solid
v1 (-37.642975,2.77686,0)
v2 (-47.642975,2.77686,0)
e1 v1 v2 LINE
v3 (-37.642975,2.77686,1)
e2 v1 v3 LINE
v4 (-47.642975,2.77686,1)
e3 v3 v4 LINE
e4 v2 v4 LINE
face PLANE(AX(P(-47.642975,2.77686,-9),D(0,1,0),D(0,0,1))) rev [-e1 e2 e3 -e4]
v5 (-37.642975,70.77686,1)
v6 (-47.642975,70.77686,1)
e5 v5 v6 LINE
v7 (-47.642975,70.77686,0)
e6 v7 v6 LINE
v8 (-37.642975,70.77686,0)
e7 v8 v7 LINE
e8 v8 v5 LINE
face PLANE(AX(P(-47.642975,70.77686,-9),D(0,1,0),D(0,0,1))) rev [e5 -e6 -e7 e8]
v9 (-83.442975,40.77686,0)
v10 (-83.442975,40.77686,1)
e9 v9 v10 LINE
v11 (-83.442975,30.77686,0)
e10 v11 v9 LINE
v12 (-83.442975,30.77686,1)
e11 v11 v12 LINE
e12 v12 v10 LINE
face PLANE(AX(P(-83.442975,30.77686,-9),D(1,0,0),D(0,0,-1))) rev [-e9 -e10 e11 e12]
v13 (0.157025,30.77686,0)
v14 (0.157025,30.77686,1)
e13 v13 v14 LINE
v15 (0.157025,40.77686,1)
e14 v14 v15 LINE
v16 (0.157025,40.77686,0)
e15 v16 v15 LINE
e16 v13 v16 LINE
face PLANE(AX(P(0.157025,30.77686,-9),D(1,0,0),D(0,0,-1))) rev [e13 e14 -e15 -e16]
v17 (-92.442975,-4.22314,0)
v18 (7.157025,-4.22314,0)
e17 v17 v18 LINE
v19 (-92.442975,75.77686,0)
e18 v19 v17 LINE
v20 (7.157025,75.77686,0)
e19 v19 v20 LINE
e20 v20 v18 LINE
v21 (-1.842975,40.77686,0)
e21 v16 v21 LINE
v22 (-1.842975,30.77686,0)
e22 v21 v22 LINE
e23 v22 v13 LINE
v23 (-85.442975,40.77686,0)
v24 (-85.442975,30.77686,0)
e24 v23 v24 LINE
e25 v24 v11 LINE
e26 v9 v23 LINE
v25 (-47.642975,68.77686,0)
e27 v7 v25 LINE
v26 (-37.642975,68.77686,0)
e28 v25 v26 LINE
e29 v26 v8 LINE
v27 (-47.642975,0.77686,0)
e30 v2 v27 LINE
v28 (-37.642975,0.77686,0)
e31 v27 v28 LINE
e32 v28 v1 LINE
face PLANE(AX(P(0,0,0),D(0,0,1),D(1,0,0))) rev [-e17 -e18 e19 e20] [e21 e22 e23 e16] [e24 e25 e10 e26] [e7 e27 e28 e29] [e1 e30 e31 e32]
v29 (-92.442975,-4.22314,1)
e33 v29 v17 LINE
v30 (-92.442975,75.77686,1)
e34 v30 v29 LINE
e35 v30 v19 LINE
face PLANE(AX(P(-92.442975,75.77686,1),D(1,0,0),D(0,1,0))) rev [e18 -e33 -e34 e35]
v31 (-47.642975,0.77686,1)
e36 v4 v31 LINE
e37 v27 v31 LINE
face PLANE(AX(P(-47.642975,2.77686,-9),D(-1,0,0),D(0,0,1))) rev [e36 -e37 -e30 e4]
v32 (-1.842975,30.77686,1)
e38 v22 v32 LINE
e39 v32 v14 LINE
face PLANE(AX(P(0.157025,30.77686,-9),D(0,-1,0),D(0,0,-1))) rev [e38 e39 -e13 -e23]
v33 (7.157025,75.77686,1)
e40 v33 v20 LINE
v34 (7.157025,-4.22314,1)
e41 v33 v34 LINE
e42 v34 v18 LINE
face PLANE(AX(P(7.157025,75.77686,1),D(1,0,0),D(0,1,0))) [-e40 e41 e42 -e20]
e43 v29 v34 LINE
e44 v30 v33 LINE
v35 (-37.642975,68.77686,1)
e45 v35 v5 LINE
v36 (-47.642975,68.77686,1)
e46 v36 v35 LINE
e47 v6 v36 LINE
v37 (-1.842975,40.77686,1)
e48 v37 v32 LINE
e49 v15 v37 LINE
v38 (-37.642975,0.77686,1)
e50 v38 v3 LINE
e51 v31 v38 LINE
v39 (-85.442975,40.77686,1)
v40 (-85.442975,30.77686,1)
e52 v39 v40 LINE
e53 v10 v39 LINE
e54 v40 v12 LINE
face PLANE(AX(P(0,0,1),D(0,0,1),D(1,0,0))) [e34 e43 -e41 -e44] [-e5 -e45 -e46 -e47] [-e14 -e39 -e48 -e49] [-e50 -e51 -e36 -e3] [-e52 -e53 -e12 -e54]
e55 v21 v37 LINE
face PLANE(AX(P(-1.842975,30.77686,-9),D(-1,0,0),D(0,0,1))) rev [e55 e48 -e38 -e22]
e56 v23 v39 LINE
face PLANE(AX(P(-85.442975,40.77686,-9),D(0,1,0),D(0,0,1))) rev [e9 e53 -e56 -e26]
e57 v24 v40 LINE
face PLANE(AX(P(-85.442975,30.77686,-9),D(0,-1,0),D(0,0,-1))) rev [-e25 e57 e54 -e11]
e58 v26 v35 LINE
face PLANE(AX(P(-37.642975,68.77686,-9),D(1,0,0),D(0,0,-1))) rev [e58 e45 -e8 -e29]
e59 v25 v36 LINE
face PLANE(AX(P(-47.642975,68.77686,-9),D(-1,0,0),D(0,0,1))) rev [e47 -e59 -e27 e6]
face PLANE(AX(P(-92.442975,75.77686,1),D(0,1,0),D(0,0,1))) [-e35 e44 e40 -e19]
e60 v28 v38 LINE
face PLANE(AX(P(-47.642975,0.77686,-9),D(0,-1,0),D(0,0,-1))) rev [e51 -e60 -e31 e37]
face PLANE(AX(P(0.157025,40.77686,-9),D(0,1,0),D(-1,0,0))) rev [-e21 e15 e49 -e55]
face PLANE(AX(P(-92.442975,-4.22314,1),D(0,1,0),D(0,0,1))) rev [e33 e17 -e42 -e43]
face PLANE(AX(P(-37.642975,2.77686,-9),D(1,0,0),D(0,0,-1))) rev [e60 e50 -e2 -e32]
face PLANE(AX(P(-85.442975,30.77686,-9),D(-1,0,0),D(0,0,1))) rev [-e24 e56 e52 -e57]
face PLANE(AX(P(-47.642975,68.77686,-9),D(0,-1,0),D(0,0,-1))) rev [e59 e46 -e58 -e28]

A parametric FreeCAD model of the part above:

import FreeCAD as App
import Part
import Sketcher
from FreeCAD import Vector
Q = App.Units.Quantity

doc = App.newDocument("Part")
body = doc.addObject("PartDesign::Body", "Body")

sketch1 = body.newObject("Sketcher::SketchObject", "Sketch")
sketch1.AttachmentSupport = (doc.getObject("XY_Plane"), [""])
sketch1.MapMode = "FlatFace"
sketch1.addGeometry([
    Part.LineSegment(Vector(-92, 76, 0), Vector(-92, -4, 0)),
    Part.LineSegment(Vector(-92, -4, 0), Vector(7, -4, 0)),
    Part.LineSegment(Vector(7, -4, 0), Vector(7, 76, 0)),
    Part.LineSegment(Vector(7, 76, 0), Vector(-92, 76, 0)),
], False)
sketch1.addConstraint([
    Sketcher.Constraint("Coincident", 0, 2, 1, 1),
    Sketcher.Constraint("Coincident", 1, 2, 2, 1),
    Sketcher.Constraint("Coincident", 2, 2, 3, 1),
    Sketcher.Constraint("Coincident", 3, 2, 0, 1),
    Sketcher.Constraint("Vertical", 0),
    Sketcher.Constraint("Horizontal", 1),
    Sketcher.Constraint("Vertical", 2),
    Sketcher.Constraint("Horizontal", 3),
    Sketcher.Constraint("DistanceY", 0, 2, 0, 1, Q("80 mm")),
    Sketcher.Constraint("DistanceX", 1, 1, 1, 2, Q("99.6 mm")),
    Sketcher.Constraint("DistanceY", 0, 2, -1, 1, Q("4.22314 mm")),
    Sketcher.Constraint("DistanceX", 0, 2, -1, 1, Q("92.442975 mm")),
])
pad1 = body.newObject("PartDesign::Pad", "Pad")
pad1.Profile = sketch1
pad1.Length = 1

sketch2 = body.newObject("Sketcher::SketchObject", "Sketch001")
sketch2.AttachmentSupport = (doc.getObject("XY_Plane"), [""])
sketch2.MapMode = "FlatFace"
sketch2.AttachmentOffset = App.Placement(Vector(0, 0, 1), App.Rotation())
sketch2.addGeometry([
    Part.LineSegment(Vector(-47.6, 70.8, 0), Vector(-47.6, 68.8, 0)),
    Part.LineSegment(Vector(-47.6, 68.8, 0), Vector(-37.6, 68.8, 0)),
    Part.LineSegment(Vector(-37.6, 68.8, 0), Vector(-37.6, 70.8, 0)),
    Part.LineSegment(Vector(-37.6, 70.8, 0), Vector(-47.6, 70.8, 0)),
    Part.LineSegment(Vector(-47.6, 2.8, 0), Vector(-47.6, 0.8, 0)),
    Part.LineSegment(Vector(-47.6, 0.8, 0), Vector(-37.6, 0.8, 0)),
    Part.LineSegment(Vector(-37.6, 0.8, 0), Vector(-37.6, 2.8, 0)),
    Part.LineSegment(Vector(-37.6, 2.8, 0), Vector(-47.6, 2.8, 0)),
    Part.LineSegment(Vector(-85.4, 40.8, 0), Vector(-85.4, 30.8, 0)),
    Part.LineSegment(Vector(-85.4, 30.8, 0), Vector(-83.4, 30.8, 0)),
    Part.LineSegment(Vector(-83.4, 30.8, 0), Vector(-83.4, 40.8, 0)),
    Part.LineSegment(Vector(-83.4, 40.8, 0), Vector(-85.4, 40.8, 0)),
    Part.LineSegment(Vector(-1.8, 40.8, 0), Vector(-1.8, 30.8, 0)),
    Part.LineSegment(Vector(-1.8, 30.8, 0), Vector(0.2, 30.8, 0)),
    Part.LineSegment(Vector(0.2, 30.8, 0), Vector(0.2, 40.8, 0)),
    Part.LineSegment(Vector(0.2, 40.8, 0), Vector(-1.8, 40.8, 0)),
], False)
sketch2.addConstraint([
    Sketcher.Constraint("Coincident", 0, 2, 1, 1),
    Sketcher.Constraint("Coincident", 1, 2, 2, 1),
    Sketcher.Constraint("Coincident", 2, 2, 3, 1),
    Sketcher.Constraint("Coincident", 3, 2, 0, 1),
    Sketcher.Constraint("Coincident", 4, 2, 5, 1),
    Sketcher.Constraint("Coincident", 5, 2, 6, 1),
    Sketcher.Constraint("Coincident", 6, 2, 7, 1),
    Sketcher.Constraint("Coincident", 7, 2, 4, 1),
    Sketcher.Constraint("Coincident", 8, 2, 9, 1),
    Sketcher.Constraint("Coincident", 9, 2, 10, 1),
    Sketcher.Constraint("Coincident", 10, 2, 11, 1),
    Sketcher.Constraint("Coincident", 11, 2, 8, 1),
    Sketcher.Constraint("Coincident", 12, 2, 13, 1),
    Sketcher.Constraint("Coincident", 13, 2, 14, 1),
    Sketcher.Constraint("Coincident", 14, 2, 15, 1),
    Sketcher.Constraint("Coincident", 15, 2, 12, 1),
    Sketcher.Constraint("Vertical", 0),
    Sketcher.Constraint("Horizontal", 1),
    Sketcher.Constraint("Vertical", 2),
    Sketcher.Constraint("Horizontal", 3),
    Sketcher.Constraint("Vertical", 4),
    Sketcher.Constraint("Horizontal", 5),
    Sketcher.Constraint("Vertical", 6),
    Sketcher.Constraint("Horizontal", 7),
    Sketcher.Constraint("Vertical", 8),
    Sketcher.Constraint("Horizontal", 9),
    Sketcher.Constraint("Vertical", 10),
    Sketcher.Constraint("Horizontal", 11),
    Sketcher.Constraint("Vertical", 12),
    Sketcher.Constraint("Horizontal", 13),
    Sketcher.Constraint("Vertical", 14),
    Sketcher.Constraint("Horizontal", 15),
    Sketcher.Constraint("Horizontal", 9, 2, 12, 2),
    Sketcher.Constraint("Horizontal", 11, 2, 14, 2),
    Sketcher.Constraint("Vertical", 3, 2, 4, 2),
    Sketcher.Constraint("Vertical", 2, 2, 5, 2),
    Sketcher.Constraint("Equal", 11, 13),
    Sketcher.Constraint("Equal", 15, 0),
    Sketcher.Constraint("Equal", 2, 4),
    Sketcher.Constraint("Equal", 7, 8),
    Sketcher.Constraint("DistanceX", 1, 1, 1, 2, Q("10 mm")),
    Sketcher.Constraint("DistanceX", 9, 1, 9, 2, Q("2 mm")),
    Sketcher.Constraint("DistanceY", 4, 2, 0, 2, Q("68 mm")),
    Sketcher.Constraint("DistanceY", 7, 2, 8, 2, Q("28 mm")),
    Sketcher.Constraint("DistanceX", 8, 2, 7, 2, Q("37.8 mm")),
    Sketcher.Constraint("DistanceX", 6, 2, 12, 2, Q("35.8 mm")),
    Sketcher.Constraint("DistanceY", -1, 1, 0, 2, Q("68.77686 mm")),
    Sketcher.Constraint("DistanceX", 0, 2, -1, 1, Q("47.642975 mm")),
])
pocket1 = body.newObject("PartDesign::Pocket", "Pocket")
pocket1.Profile = sketch2
pocket1.Length = 10

doc.recompute()
